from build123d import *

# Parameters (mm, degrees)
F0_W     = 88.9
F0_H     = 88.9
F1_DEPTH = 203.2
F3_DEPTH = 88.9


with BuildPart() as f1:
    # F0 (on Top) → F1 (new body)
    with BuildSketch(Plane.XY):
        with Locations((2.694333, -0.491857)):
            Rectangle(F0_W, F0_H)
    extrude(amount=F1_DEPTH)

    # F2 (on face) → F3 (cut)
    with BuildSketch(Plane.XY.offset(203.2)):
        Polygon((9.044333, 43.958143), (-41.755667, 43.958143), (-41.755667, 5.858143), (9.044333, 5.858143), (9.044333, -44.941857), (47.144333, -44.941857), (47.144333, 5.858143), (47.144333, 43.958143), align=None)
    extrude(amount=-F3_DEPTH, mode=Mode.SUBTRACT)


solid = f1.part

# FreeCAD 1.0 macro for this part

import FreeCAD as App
import Part
import Sketcher

V = App.Vector
Q = App.Units.Quantity


def add_polygon(sketch, points):
    """Adds a closed chain of lines whose ends are joined by coincident constraints."""
    first, n = sketch.GeometryCount, len(points)
    for a, b in zip(points, points[1:] + points[:1]):
        sketch.addGeometry(Part.LineSegment(App.Vector(*a, 0), App.Vector(*b, 0)), False)
    for i in range(n):
        sketch.addConstraint(Sketcher.Constraint("Coincident", first + i, 2, first + (i + 1) % n, 1))

doc = App.newDocument("Part")
body = doc.addObject("PartDesign::Body", "Body")

sketch1 = body.newObject("Sketcher::SketchObject", "Sketch")
sketch1.AttachmentSupport = (doc.getObject("XY_Plane"), [""])
sketch1.MapMode = "FlatFace"
add_polygon(sketch1, [(-42, 44), (-42, -45), (47, -45), (47, 44)])
sketch1.addConstraint([
    Sketcher.Constraint("Vertical", 0),
    Sketcher.Constraint("Horizontal", 1),
    Sketcher.Constraint("Vertical", 2),
    Sketcher.Constraint("Horizontal", 3),
    Sketcher.Constraint("Equal", 3, 0),
    Sketcher.Constraint("DistanceX", 1, 1, 1, 2, Q("3.5 in")),
    Sketcher.Constraint("DistanceX", 0, 2, -1, 1, Q("41.755667 mm")),
    Sketcher.Constraint("DistanceY", 0, 2, -1, 1, Q("44.941857 mm")),
])
pad1 = body.newObject("PartDesign::Pad", "Pad")
pad1.Profile = sketch1
pad1.Length = Q("8 in")

sketch2 = body.newObject("Sketcher::SketchObject", "Sketch001")
sketch2.AttachmentSupport = (doc.getObject("XY_Plane"), [""])
sketch2.MapMode = "FlatFace"
sketch2.AttachmentOffset = App.Placement(V(0, 0, 8 * 25.4), App.Rotation())
add_polygon(sketch2, [(-42, 44), (-42, 6), (9, 6), (9, -45), (47, -45), (47, 44)])
sketch2.addConstraint([
    Sketcher.Constraint("Vertical", 0),
    Sketcher.Constraint("Horizontal", 1),
    Sketcher.Constraint("Vertical", 2),
    Sketcher.Constraint("Horizontal", 3),
    Sketcher.Constraint("Vertical", 4),
    Sketcher.Constraint("Horizontal", 5),
    Sketcher.Constraint("Equal", 3, 0),
    Sketcher.Constraint("Equal", 1, 2),
    Sketcher.Constraint("DistanceX", 1, 1, 1, 2, Q("2 in")),
    Sketcher.Constraint("DistanceX", 3, 1, 3, 2, Q("1.5 in")),
    Sketcher.Constraint("DistanceX", 0, 2, -1, 1, Q("41.755667 mm")),
    Sketcher.Constraint("DistanceY", -1, 1, 0, 2, Q("5.858143 mm")),
])
pocket1 = body.newObject("PartDesign::Pocket", "Pocket")
pocket1.Profile = sketch2
pocket1.Length = Q("3.5 in")

doc.recompute()
